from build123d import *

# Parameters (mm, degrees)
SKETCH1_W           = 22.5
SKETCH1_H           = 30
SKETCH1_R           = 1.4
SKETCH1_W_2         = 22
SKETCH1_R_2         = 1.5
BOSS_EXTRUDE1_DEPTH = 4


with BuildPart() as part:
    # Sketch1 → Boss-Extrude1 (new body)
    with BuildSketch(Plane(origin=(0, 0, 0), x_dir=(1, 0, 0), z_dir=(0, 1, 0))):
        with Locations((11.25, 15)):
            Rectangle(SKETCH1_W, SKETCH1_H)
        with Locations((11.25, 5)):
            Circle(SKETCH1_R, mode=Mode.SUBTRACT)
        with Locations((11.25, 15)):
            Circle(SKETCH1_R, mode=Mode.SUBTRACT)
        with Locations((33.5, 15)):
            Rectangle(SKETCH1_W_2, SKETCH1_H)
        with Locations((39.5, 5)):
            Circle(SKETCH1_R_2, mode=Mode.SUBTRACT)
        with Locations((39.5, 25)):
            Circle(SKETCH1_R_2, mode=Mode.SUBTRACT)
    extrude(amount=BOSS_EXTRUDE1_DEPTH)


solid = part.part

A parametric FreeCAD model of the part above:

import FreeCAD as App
import Part
import Sketcher
from FreeCAD import Vector
Q = App.Units.Quantity


def add_polygon(sketch, points):
    """Adds a closed chain of lines whose ends are joined by coincident constraints."""
    first, n = sketch.GeometryCount, len(points)
    for a, b in zip(points, points[1:] + points[:1]):
        sketch.addGeometry(Part.LineSegment(App.Vector(*a, 0), App.Vector(*b, 0)), False)
    for i in range(n):
        sketch.addConstraint(Sketcher.Constraint("Coincident", first + i, 2, first + (i + 1) % n, 1))

doc = App.newDocument("Part")
params = doc.addObject("Spreadsheet::Sheet", "Params")
for row, (alias, value) in enumerate([
    ("sketch1_diameter", "3 mm"),
    ("sketch1_diameter2", "2.8 mm"),
    ("sketch1_height", "30 mm"),
    ("sketch1_width", "44.5 mm"),
    ("pad1_length", "4 mm"),
], start=1):
    params.set(f"A{row}", alias)
    params.set(f"B{row}", "=" + value)
    params.setAlias(f"B{row}", alias)

body = doc.addObject("PartDesign::Body", "Body")

# Sketch on XZ plane
sketch1 = doc.addObject("Sketcher::SketchObject", "Sketch")
body.addObject(sketch1)
sketch1.AttachmentSupport = (doc.XZ_Plane, [""])
sketch1.MapMode = "FlatFace"
add_polygon(sketch1, [(0, -30), (0, 0), (44.5, 0), (44.5, -30)])  # lines 0-3
sketch1.addGeometry(Part.Circle(Vector(11.25, -5, 0), Vector(0, 0, 1), 1.4), False)  # 4
sketch1.addGeometry(Part.Circle(Vector(39.5, -5, 0), Vector(0, 0, 1), 1.5), False)  # 5
sketch1.addGeometry(Part.Circle(Vector(11.25, -15, 0), Vector(0, 0, 1), 1.4), False)  # 6
sketch1.addGeometry(Part.Circle(Vector(39.5, -25, 0), Vector(0, 0, 1), 1.5), False)  # 7
sketch1.addConstraint([
    Sketcher.Constraint("Vertical", 0),
    Sketcher.Constraint("Horizontal", 1),
    Sketcher.Constraint("Vertical", 2),
    Sketcher.Constraint("Horizontal", 3),
    Sketcher.Constraint("Coincident", 0, 2, -1, 1),
    Sketcher.Constraint("Equal", 4, 6),
    Sketcher.Constraint("Equal", 5, 7),
    Sketcher.Constraint("Horizontal", 4, 3, 5, 3),
    Sketcher.Constraint("Vertical", 4, 3, 6, 3),
    Sketcher.Constraint("Vertical", 5, 3, 7, 3),
    Sketcher.Constraint("Diameter", 5, Q("3 mm")),
    Sketcher.Constraint("Diameter", 4, Q("2.8 mm")),
    Sketcher.Constraint("DistanceY", 0, 1, 0, 2, Q("30 mm")),
    Sketcher.Constraint("DistanceX", 1, 1, 1, 2, Q("44.5 mm")),
    Sketcher.Constraint("DistanceY", 4, 3, -1, 1, Q("5 mm")),
    Sketcher.Constraint("DistanceY", 6, 3, -1, 1, Q("15 mm")),
    Sketcher.Constraint("DistanceY", 7, 3, -1, 1, Q("25 mm")),
    Sketcher.Constraint("DistanceX", 5, 3, 1, 2, Q("5 mm")),
    Sketcher.Constraint("DistanceX", -1, 1, 4, 3, Q("11.25 mm")),
])
sketch1.setExpression("Constraints[14]", "Params.sketch1_diameter")
sketch1.setExpression("Constraints[15]", "Params.sketch1_diameter2")
sketch1.setExpression("Constraints[16]", "Params.sketch1_height")
sketch1.setExpression("Constraints[17]", "Params.sketch1_width")
pad1 = doc.addObject("PartDesign::Pad", "Pad")
body.addObject(pad1)
pad1.Profile = sketch1
pad1.setExpression("Length", "Params.pad1_length")
pad1.Reversed = True

doc.recompute()
